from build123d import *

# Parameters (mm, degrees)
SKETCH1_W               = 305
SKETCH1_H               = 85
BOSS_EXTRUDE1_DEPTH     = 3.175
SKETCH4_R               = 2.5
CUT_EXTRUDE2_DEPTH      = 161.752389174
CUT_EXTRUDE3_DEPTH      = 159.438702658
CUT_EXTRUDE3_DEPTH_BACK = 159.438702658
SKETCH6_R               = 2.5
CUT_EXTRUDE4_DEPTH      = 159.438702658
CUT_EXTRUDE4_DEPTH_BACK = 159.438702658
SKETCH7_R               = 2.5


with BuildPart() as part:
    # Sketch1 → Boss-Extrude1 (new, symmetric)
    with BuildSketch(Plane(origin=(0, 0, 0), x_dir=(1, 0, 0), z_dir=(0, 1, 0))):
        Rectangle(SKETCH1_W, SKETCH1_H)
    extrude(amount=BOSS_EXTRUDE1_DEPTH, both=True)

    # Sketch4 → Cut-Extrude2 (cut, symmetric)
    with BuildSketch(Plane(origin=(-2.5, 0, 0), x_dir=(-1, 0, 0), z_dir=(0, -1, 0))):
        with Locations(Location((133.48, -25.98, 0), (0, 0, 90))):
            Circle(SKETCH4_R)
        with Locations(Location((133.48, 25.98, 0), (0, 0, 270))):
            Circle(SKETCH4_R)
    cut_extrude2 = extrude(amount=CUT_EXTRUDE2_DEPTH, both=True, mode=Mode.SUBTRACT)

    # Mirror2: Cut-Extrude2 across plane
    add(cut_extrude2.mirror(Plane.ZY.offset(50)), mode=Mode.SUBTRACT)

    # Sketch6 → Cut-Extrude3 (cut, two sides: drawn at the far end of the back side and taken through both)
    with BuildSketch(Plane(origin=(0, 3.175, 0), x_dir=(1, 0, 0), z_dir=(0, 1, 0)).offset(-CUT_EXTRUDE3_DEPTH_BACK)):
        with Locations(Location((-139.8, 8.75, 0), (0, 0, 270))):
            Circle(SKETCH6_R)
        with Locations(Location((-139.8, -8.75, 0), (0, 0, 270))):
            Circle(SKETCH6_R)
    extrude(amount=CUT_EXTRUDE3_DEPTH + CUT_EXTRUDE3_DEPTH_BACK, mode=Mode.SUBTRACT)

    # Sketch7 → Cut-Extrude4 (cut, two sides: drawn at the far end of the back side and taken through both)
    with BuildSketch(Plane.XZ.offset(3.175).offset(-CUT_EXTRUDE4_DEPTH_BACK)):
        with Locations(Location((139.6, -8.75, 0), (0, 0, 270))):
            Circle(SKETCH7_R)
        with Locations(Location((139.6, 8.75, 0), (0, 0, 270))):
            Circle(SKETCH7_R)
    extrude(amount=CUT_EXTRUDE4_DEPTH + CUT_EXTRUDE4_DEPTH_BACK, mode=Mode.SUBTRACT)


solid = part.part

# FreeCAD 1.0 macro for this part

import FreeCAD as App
import Part
import Sketcher

V = App.Vector


def add_polygon(sketch, points):
    """Adds a closed chain of lines whose ends are joined by coincident constraints."""
    first, n = sketch.GeometryCount, len(points)
    for a, b in zip(points, points[1:] + points[:1]):
        sketch.addGeometry(Part.LineSegment(App.Vector(*a, 0), App.Vector(*b, 0)), False)
    for i in range(n):
        sketch.addConstraint(Sketcher.Constraint("Coincident", first + i, 2, first + (i + 1) % n, 1))

doc = App.newDocument("Part")
body = doc.addObject("PartDesign::Body", "Body")

# Sketch on XZ plane
sketch1 = body.newObject("Sketcher::SketchObject", "Sketch")
sketch1.AttachmentSupport = (doc.getObject("XZ_Plane"), [""])
sketch1.MapMode = "FlatFace"
add_polygon(sketch1, [(-152, -42), (-152, 42), (152, 42), (152, -42)])  # lines 0-3
sketch1.addConstraint(Sketcher.Constraint("Vertical", 0))
sketch1.addConstraint(Sketcher.Constraint("Horizontal", 1))
sketch1.addConstraint(Sketcher.Constraint("Vertical", 2))
sketch1.addConstraint(Sketcher.Constraint("Horizontal", 3))
sketch1.addConstraint(Sketcher.Constraint("Symmetric", 0, 2, 2, 2, -1, 1))
sketch1.addConstraint(Sketcher.Constraint("DistanceX", 1, 1, 1, 2, 305.0))
sketch1.addConstraint(Sketcher.Constraint("DistanceY", 0, 1, 0, 2, 85.0))
pad1 = body.newObject("PartDesign::Pad", "Pad")
pad1.Profile = sketch1
pad1.Length = 6.35
pad1.Midplane = True

# Sketch on XZ plane
sketch2 = body.newObject("Sketcher::SketchObject", "Sketch001")
sketch2.AttachmentSupport = (doc.getObject("XZ_Plane"), [""])
sketch2.MapMode = "FlatFace"
sketch2.addGeometry(Part.Circle(V(-136, 26, 0), V(0, 0, 1), 2.5), False)
sketch2.addGeometry(Part.Circle(V(-136, -26, 0), V(0, 0, 1), 2.5), False)
sketch2.addConstraint(Sketcher.Constraint("Equal", 0, 1))
sketch2.addConstraint(Sketcher.Constraint("Symmetric", 0, 3, 1, 3, -1))
sketch2.addConstraint(Sketcher.Constraint("Diameter", 0, 5.0))
sketch2.addConstraint(Sketcher.Constraint("DistanceX", 0, 3, -1, 1, 135.98))
sketch2.addConstraint(Sketcher.Constraint("DistanceY", -1, 1, 0, 3, 25.98))
pocket1 = body.newObject("PartDesign::Pocket", "Pocket")
pocket1.Profile = sketch2
pocket1.Length = 323.504778
pocket1.Midplane = True
doc.recompute()

datumplane = body.newObject("PartDesign::Plane", "DatumPlane")
datumplane.AttachmentSupport = (doc.getObject("YZ_Plane"), [""])
datumplane.MapMode = "FlatFace"
datumplane.AttachmentOffset = App.Placement(V(0, 0, -50), App.Rotation())
mirrored = body.newObject("PartDesign::Mirrored", "Mirrored")
mirrored.Originals = [pocket1]
mirrored.MirrorPlane = (datumplane, [""])
body.Tip = mirrored

# Sketch on XZ plane
sketch3 = body.newObject("Sketcher::SketchObject", "Sketch002")
sketch3.AttachmentSupport = (doc.getObject("XZ_Plane"), [""])
sketch3.MapMode = "FlatFace"
sketch3.AttachmentOffset = App.Placement(V(0, 0, -3.175), App.Rotation())
sketch3.addGeometry(Part.Circle(V(-139.8, -8.8, 0), V(0, 0, 1), 2.5), False)
sketch3.addGeometry(Part.Circle(V(-139.8, 8.8, 0), V(0, 0, 1), 2.5), False)
sketch3.addConstraint(Sketcher.Constraint("Equal", 0, 1))
sketch3.addConstraint(Sketcher.Constraint("Symmetric", 0, 3, 1, 3, -1))
sketch3.addConstraint(Sketcher.Constraint("Diameter", 0, 5.0))
sketch3.addConstraint(Sketcher.Constraint("DistanceX", 0, 3, -1, 1, 139.8))
sketch3.addConstraint(Sketcher.Constraint("DistanceY", 0, 3, 1, 3, 17.5))
pocket2 = body.newObject("PartDesign::Pocket", "Pocket001")
pocket2.Profile = sketch3
pocket2.Type = "ThroughAll"
pocket2.Midplane = True

# Sketch on XZ plane
sketch4 = body.newObject("Sketcher::SketchObject", "Sketch003")
sketch4.AttachmentSupport = (doc.getObject("XZ_Plane"), [""])
sketch4.MapMode = "FlatFace"
sketch4.AttachmentOffset = App.Placement(V(0, 0, 3.175), App.Rotation())
sketch4.addGeometry(Part.Circle(V(139.6, -8.8, 0), V(0, 0, 1), 2.5), False)
sketch4.addGeometry(Part.Circle(V(139.6, 8.8, 0), V(0, 0, 1), 2.5), False)
sketch4.addConstraint(Sketcher.Constraint("Equal", 0, 1))
sketch4.addConstraint(Sketcher.Constraint("Symmetric", 0, 3, 1, 3, -1))
sketch4.addConstraint(Sketcher.Constraint("Diameter", 0, 5.0))
sketch4.addConstraint(Sketcher.Constraint("DistanceX", -1, 1, 0, 3, 139.6))
sketch4.addConstraint(Sketcher.Constraint("DistanceY", 0, 3, 1, 3, 17.5))
pocket3 = body.newObject("PartDesign::Pocket", "Pocket002")
pocket3.Profile = sketch4
pocket3.Type = "ThroughAll"
pocket3.Midplane = True

doc.recompute()
